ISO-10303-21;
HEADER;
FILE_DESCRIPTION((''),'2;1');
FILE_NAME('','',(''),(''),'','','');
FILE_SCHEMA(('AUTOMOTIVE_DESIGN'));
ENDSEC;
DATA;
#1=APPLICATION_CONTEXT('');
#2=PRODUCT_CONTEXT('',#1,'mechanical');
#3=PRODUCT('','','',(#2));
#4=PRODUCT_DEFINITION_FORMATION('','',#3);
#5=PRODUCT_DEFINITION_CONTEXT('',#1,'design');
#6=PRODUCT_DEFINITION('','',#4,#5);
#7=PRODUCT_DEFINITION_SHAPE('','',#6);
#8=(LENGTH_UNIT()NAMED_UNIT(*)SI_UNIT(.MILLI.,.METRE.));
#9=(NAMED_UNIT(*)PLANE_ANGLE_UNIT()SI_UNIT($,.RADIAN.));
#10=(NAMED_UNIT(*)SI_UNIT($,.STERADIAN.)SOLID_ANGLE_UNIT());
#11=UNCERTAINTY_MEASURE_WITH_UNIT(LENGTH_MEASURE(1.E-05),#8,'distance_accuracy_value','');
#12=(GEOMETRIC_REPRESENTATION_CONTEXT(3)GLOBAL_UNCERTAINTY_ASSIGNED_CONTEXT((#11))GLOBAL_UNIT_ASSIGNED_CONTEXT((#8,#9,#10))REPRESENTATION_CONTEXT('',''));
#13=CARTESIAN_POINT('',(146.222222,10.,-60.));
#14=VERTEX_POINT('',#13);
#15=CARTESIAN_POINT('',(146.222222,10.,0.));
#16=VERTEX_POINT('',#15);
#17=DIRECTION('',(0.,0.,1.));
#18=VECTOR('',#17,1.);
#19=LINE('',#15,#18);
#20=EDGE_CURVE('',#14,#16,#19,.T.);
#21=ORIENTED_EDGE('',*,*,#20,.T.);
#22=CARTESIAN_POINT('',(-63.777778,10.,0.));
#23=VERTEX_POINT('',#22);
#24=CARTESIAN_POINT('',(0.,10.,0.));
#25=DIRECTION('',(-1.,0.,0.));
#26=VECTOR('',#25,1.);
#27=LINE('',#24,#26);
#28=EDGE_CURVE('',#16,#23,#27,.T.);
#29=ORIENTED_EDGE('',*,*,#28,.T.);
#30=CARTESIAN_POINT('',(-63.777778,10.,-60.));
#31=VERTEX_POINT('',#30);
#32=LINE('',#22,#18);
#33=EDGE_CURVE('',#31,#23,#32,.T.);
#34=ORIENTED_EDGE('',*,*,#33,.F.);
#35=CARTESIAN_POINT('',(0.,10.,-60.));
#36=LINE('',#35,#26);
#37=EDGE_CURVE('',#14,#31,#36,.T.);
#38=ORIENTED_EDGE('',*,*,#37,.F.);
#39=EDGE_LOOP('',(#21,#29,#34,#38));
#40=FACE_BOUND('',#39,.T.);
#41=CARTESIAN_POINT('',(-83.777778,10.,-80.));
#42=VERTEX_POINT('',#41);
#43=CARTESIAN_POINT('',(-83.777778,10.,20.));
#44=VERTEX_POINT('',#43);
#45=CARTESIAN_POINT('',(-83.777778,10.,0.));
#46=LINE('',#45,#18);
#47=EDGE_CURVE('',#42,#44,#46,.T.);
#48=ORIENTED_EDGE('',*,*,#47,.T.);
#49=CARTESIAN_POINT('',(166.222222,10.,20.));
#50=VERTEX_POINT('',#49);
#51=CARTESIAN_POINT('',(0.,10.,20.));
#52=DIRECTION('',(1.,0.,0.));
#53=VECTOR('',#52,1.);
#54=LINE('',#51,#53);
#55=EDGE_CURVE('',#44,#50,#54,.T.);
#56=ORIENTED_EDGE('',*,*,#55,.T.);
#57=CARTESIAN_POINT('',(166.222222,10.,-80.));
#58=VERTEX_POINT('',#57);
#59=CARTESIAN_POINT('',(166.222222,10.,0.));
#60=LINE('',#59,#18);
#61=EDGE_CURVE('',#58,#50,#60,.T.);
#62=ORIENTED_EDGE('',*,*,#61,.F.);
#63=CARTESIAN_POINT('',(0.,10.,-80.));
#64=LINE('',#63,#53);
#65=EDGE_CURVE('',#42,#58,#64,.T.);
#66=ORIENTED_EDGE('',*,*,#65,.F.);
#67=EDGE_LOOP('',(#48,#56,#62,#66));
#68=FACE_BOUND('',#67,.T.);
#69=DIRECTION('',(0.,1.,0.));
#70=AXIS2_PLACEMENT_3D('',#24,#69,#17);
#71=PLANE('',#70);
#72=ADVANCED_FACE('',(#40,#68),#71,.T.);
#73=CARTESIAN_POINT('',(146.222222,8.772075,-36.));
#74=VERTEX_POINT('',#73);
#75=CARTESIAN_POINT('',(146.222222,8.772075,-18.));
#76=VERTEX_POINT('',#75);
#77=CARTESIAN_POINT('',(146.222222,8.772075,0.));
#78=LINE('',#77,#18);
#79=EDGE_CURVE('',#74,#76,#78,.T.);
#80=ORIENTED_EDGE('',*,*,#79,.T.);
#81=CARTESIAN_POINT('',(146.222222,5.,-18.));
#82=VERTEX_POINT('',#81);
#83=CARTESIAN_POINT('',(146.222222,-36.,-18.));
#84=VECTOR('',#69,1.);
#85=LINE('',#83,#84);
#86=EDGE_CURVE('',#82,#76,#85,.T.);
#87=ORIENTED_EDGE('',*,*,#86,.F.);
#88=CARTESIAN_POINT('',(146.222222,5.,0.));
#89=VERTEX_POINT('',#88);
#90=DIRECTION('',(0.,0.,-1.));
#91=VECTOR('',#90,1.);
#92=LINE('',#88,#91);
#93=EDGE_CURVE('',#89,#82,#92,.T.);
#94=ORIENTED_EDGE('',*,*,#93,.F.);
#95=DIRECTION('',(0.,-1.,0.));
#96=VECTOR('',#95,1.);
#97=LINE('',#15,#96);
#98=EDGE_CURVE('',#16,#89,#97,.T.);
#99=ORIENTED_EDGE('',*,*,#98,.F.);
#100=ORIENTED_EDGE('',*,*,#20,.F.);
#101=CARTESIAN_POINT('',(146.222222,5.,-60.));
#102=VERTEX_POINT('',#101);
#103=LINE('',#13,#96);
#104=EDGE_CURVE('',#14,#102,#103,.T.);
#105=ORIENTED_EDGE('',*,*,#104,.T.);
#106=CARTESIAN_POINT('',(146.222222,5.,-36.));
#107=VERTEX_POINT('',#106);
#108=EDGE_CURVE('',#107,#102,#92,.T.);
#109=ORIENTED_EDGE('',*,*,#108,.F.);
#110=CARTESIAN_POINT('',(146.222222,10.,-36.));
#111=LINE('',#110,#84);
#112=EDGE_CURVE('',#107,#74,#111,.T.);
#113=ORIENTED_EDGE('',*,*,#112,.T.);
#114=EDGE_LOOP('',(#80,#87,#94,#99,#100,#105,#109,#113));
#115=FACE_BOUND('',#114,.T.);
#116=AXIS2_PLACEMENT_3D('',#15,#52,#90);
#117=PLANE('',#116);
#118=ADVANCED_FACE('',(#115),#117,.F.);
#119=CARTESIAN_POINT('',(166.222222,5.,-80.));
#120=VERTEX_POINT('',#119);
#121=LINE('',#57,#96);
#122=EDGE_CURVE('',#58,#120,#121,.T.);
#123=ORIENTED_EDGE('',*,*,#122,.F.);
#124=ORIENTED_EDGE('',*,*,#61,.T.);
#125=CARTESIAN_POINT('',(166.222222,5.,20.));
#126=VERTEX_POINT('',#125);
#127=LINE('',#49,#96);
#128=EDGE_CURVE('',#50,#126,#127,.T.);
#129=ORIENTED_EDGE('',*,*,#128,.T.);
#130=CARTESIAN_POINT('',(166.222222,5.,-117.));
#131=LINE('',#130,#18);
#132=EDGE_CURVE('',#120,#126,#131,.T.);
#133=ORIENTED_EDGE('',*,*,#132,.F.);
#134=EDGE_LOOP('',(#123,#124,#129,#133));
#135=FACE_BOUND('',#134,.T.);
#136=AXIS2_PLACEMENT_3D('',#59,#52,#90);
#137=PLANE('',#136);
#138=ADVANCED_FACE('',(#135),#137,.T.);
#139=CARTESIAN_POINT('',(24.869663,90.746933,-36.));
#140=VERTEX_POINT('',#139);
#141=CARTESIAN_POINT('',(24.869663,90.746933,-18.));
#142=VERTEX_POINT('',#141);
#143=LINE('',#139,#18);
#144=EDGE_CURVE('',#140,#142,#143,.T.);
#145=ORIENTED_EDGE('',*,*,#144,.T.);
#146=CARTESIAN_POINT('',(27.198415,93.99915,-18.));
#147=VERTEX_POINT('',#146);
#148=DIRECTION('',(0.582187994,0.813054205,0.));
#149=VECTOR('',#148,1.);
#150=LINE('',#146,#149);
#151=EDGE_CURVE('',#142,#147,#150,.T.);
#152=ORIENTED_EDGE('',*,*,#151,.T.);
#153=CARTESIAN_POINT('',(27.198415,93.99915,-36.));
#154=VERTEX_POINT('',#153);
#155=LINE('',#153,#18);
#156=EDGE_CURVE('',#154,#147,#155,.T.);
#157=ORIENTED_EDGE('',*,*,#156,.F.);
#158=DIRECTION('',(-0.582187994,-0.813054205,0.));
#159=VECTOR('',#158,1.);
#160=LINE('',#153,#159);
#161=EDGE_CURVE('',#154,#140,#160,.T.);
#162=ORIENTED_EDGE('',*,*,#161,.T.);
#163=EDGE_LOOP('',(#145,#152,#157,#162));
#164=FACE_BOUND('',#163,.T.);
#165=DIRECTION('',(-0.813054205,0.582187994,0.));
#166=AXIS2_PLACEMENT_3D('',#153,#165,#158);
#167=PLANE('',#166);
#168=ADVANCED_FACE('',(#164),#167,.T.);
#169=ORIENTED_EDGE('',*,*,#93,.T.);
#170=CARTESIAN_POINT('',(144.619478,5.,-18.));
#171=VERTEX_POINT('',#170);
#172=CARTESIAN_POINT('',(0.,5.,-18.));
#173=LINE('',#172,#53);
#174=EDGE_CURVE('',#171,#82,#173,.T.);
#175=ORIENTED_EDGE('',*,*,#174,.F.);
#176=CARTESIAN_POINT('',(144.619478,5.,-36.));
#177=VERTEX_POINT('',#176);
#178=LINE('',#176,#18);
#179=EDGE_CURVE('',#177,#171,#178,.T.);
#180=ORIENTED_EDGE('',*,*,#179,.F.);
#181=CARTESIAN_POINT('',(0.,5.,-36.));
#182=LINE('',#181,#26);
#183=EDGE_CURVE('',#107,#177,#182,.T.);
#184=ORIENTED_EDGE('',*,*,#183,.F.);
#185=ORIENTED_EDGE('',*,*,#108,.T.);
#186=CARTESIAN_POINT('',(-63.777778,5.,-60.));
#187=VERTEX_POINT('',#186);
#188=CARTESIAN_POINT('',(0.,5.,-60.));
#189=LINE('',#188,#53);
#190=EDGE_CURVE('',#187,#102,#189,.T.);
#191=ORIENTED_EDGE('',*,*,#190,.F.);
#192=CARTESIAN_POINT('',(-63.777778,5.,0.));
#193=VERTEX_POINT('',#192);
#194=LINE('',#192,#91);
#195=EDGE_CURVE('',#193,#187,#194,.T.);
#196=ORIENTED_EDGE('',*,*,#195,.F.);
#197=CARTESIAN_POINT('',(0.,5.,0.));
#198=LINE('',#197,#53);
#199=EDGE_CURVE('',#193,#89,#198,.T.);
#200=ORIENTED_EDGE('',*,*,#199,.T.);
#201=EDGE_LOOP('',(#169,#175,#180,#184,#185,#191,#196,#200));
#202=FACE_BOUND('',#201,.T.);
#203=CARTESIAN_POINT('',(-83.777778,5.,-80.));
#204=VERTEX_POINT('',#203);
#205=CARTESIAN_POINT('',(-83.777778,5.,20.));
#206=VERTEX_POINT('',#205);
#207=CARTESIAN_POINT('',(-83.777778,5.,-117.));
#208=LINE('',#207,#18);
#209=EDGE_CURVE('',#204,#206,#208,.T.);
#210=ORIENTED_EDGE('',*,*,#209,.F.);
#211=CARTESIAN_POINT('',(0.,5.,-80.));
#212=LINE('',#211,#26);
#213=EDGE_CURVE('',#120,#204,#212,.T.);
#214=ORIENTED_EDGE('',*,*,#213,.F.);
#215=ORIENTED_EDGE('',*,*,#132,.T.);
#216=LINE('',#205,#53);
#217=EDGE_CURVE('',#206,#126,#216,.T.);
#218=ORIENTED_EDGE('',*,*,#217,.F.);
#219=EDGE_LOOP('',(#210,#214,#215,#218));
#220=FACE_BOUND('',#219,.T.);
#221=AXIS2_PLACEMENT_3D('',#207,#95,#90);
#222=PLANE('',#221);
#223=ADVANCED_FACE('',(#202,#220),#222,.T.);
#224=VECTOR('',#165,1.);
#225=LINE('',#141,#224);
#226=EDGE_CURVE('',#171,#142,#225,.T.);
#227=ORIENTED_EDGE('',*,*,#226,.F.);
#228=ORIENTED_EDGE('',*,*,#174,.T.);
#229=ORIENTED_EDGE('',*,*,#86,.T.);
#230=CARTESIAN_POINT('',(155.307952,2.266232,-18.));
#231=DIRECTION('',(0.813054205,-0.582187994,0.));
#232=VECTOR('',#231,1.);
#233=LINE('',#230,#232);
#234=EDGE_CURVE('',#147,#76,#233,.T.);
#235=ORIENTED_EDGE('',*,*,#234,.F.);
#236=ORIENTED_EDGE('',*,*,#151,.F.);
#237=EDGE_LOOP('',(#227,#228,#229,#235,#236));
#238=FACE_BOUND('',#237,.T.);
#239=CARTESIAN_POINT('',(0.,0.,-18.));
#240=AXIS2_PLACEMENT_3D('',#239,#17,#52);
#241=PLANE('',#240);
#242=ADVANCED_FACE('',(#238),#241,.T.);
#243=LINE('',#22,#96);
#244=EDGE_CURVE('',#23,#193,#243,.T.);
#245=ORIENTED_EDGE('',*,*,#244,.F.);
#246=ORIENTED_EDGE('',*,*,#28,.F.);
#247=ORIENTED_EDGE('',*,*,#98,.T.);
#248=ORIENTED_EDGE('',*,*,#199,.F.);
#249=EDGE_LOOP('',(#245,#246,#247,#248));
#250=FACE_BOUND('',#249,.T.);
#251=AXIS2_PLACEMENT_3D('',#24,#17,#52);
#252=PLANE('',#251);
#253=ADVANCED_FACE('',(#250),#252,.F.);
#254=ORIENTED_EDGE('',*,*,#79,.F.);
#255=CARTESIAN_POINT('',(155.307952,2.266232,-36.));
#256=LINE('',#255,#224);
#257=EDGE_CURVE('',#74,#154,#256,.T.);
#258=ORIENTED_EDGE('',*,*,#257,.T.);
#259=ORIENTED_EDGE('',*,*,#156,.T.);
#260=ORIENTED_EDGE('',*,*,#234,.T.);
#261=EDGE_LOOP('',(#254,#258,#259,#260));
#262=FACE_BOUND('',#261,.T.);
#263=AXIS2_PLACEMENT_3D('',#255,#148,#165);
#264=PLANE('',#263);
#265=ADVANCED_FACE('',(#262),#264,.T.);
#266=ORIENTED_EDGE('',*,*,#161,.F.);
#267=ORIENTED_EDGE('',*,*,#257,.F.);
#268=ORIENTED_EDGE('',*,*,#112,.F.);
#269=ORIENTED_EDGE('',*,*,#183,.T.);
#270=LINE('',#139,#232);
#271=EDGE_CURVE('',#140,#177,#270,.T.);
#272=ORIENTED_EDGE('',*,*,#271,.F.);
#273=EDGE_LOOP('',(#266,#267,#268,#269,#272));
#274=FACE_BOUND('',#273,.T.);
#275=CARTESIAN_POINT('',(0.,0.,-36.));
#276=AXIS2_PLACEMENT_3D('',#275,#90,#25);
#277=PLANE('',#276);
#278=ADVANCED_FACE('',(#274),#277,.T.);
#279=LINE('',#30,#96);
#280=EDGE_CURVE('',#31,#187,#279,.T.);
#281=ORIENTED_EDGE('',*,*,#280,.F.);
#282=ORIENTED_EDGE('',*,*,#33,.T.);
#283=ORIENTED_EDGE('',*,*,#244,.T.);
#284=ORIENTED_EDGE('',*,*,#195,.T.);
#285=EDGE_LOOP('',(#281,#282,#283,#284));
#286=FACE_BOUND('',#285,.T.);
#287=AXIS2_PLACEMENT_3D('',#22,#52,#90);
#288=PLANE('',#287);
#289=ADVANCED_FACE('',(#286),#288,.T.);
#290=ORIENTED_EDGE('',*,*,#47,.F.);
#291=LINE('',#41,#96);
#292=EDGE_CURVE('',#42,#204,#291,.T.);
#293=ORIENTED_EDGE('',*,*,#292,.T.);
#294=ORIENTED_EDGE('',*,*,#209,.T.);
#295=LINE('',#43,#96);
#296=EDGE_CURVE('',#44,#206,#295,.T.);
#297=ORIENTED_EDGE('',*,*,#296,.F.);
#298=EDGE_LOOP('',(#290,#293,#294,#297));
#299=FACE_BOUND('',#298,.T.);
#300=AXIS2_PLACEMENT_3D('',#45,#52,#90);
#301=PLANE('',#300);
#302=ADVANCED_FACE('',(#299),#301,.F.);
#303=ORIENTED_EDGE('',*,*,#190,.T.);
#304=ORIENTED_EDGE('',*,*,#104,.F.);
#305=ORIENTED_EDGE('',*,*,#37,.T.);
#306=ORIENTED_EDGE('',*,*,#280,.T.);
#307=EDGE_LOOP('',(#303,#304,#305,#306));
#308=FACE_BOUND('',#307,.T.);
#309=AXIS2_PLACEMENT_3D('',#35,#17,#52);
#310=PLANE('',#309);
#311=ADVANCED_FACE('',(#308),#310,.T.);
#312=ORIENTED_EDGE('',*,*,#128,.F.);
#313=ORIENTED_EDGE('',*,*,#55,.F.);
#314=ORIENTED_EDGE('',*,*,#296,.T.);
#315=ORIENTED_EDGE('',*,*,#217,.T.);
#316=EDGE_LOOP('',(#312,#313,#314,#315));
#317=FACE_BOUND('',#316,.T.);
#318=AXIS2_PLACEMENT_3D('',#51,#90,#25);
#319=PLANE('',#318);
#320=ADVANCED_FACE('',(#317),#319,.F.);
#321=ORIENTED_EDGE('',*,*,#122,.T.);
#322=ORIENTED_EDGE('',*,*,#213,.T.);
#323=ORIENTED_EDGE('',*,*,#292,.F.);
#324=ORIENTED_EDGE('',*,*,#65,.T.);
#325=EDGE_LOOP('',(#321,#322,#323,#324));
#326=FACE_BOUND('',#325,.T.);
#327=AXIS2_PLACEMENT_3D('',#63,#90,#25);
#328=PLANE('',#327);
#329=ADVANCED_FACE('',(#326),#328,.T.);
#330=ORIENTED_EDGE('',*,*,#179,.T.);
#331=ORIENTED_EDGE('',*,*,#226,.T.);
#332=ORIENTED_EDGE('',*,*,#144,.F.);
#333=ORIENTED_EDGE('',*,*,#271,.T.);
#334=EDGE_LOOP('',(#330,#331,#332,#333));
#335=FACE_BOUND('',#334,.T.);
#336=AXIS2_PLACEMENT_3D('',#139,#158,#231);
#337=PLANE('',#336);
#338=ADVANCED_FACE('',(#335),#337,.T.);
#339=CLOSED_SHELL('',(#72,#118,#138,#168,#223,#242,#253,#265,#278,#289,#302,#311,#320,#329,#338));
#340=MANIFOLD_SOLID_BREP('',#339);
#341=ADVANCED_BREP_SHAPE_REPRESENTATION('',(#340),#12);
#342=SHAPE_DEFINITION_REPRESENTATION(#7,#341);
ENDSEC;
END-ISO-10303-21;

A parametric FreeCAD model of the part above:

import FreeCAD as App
import Part
import Sketcher
from FreeCAD import Vector


def add_polygon(sketch, points):
    """Adds a closed chain of lines whose ends are joined by coincident constraints."""
    first, n = sketch.GeometryCount, len(points)
    for a, b in zip(points, points[1:] + points[:1]):
        sketch.addGeometry(Part.LineSegment(App.Vector(*a, 0), App.Vector(*b, 0)), False)
    for i in range(n):
        sketch.addConstraint(Sketcher.Constraint("Coincident", first + i, 2, first + (i + 1) % n, 1))

doc = App.newDocument("Part")
body = doc.addObject("PartDesign::Body", "Body")

sketch1 = body.newObject("Sketcher::SketchObject", "Sketch")
sketch1.AttachmentSupport = (doc.getObject("XZ_Plane"), [""])
sketch1.MapMode = "FlatFace"
add_polygon(sketch1, [(-84, -80), (-84, 20), (166, 20), (166, -80)])
add_polygon(sketch1, [(-64, -60), (146, -60), (146, 0), (-64, 0)])
sketch1.addConstraint(Sketcher.Constraint("Vertical", 0))
sketch1.addConstraint(Sketcher.Constraint("Horizontal", 1))
sketch1.addConstraint(Sketcher.Constraint("Vertical", 2))
sketch1.addConstraint(Sketcher.Constraint("Horizontal", 3))
sketch1.addConstraint(Sketcher.Constraint("Horizontal", 4))
sketch1.addConstraint(Sketcher.Constraint("Vertical", 5))
sketch1.addConstraint(Sketcher.Constraint("Horizontal", 6))
sketch1.addConstraint(Sketcher.Constraint("Vertical", 7))
sketch1.addConstraint(Sketcher.Constraint("PointOnObject", 5, 2, -1))
sketch1.addConstraint(Sketcher.Constraint("DistanceX", 1, 1, 1, 2, 250.0))
sketch1.addConstraint(Sketcher.Constraint("DistanceX", 4, 1, 4, 2, 210.0))
sketch1.addConstraint(Sketcher.Constraint("DistanceY", 0, 1, 0, 2, 100.0))
sketch1.addConstraint(Sketcher.Constraint("DistanceY", 5, 1, 5, 2, 60.0))
sketch1.addConstraint(Sketcher.Constraint("DistanceY", -1, 1, 0, 2, 20.0))
sketch1.addConstraint(Sketcher.Constraint("DistanceX", 4, 2, 2, 2, 20.0))
sketch1.addConstraint(Sketcher.Constraint("DistanceX", 0, 2, -1, 1, 83.777778))
pad1 = body.newObject("PartDesign::Pad", "Pad")
pad1.Profile = sketch1
pad1.Length = 10
pad1.Reversed = True

sketch2 = body.newObject("Sketcher::SketchObject", "Sketch001")
sketch2.AttachmentSupport = (doc.getObject("XY_Plane"), [""])
sketch2.MapMode = "FlatFace"
add_polygon(sketch2, [(155.3, 2.3), (27.2, 94), (24.9, 90.7), (148.4, 2.3)])
sketch2.addConstraint(Sketcher.Constraint("Horizontal", 3))
sketch2.addConstraint(Sketcher.Constraint("Perpendicular", 0, 1))
sketch2.addConstraint(Sketcher.Constraint("Perpendicular", 1, 2))
sketch2.addConstraint(Sketcher.Constraint("Distance", 1, 4.0))
sketch2.addConstraint(Sketcher.Constraint("Distance", 0, 157.565801))
sketch2.addConstraint(Sketcher.Constraint("DistanceY", 2, 2, 1, 2, 88.480701))
sketch2.addConstraint(Sketcher.Constraint("DistanceY", -1, 1, 0, 2, 93.99915))
sketch2.addConstraint(Sketcher.Constraint("DistanceX", -1, 1, 2, 2, 148.437319))
pad2 = body.newObject("PartDesign::Pad", "Pad001")
pad2.Profile = sketch2
pad2.Length = 36
pad2.Reversed = True

sketch3 = body.newObject("Sketcher::SketchObject", "Sketch002")
sketch3.AttachmentSupport = (doc.getObject("XY_Plane"), [""])
sketch3.MapMode = "FlatFace"
add_polygon(sketch3, [(12, 150), (12, 10), (152, 10), (152, 150)])
sketch3.addConstraint(Sketcher.Constraint("Vertical", 0))
sketch3.addConstraint(Sketcher.Constraint("Horizontal", 1))
sketch3.addConstraint(Sketcher.Constraint("Vertical", 2))
sketch3.addConstraint(Sketcher.Constraint("Horizontal", 3))
sketch3.addConstraint(Sketcher.Constraint("Equal", 3, 0))
sketch3.addConstraint(Sketcher.Constraint("DistanceX", 1, 1, 1, 2, 140.0))
sketch3.addConstraint(Sketcher.Constraint("DistanceY", -1, 1, 0, 2, 10.0))
sketch3.addConstraint(Sketcher.Constraint("DistanceX", -1, 1, 0, 2, 12.194739))
pocket1 = body.newObject("PartDesign::Pocket", "Pocket")
pocket1.Profile = sketch3
pocket1.Length = 18

sketch4 = body.newObject("Sketcher::SketchObject", "Sketch003")
sketch4.AttachmentSupport = (doc.getObject("XZ_Plane"), [""])
sketch4.MapMode = "FlatFace"
sketch4.AttachmentOffset = App.Placement(Vector(0, 0, -10), App.Rotation())
add_polygon(sketch4, [(138, -18), (138, 0), (146, 0), (146, -18)])
sketch4.addConstraint(Sketcher.Constraint("Vertical", 0))
sketch4.addConstraint(Sketcher.Constraint("Horizontal", 1))
sketch4.addConstraint(Sketcher.Constraint("Vertical", 2))
sketch4.addConstraint(Sketcher.Constraint("Horizontal", 3))
sketch4.addConstraint(Sketcher.Constraint("PointOnObject", 0, 2, -1))
sketch4.addConstraint(Sketcher.Constraint("DistanceY", 0, 1, 0, 2, 18.0))
sketch4.addConstraint(Sketcher.Constraint("DistanceX", 1, 1, 1, 2, 8.585491))
sketch4.addConstraint(Sketcher.Constraint("DistanceX", -1, 1, 0, 2, 137.636731))
pocket2 = body.newObject("PartDesign::Pocket", "Pocket001")
pocket2.Profile = sketch4
pocket2.Length = 46
pocket2.Reversed = True

sketch5 = body.newObject("Sketcher::SketchObject", "Sketch004")
sketch5.AttachmentSupport = (doc.getObject("XY_Plane"), [""])
sketch5.MapMode = "FlatFace"
sketch5.AttachmentOffset = App.Placement(Vector(0, 0, 20), App.Rotation())
add_polygon(sketch5, [(-84, 5), (-84, 0), (166, 0), (166, 5)])
sketch5.addConstraint(Sketcher.Constraint("Vertical", 0))
sketch5.addConstraint(Sketcher.Constraint("Horizontal", 1))
sketch5.addConstraint(Sketcher.Constraint("Vertical", 2))
sketch5.addConstraint(Sketcher.Constraint("Horizontal", 3))
sketch5.addConstraint(Sketcher.Constraint("PointOnObject", 0, 2, -1))
sketch5.addConstraint(Sketcher.Constraint("DistanceX", 1, 1, 1, 2, 250.0))
sketch5.addConstraint(Sketcher.Constraint("DistanceY", 0, 2, 0, 1, 5.0))
sketch5.addConstraint(Sketcher.Constraint("DistanceX", 0, 2, -1, 1, 83.777778))
pocket3 = body.newObject("PartDesign::Pocket", "Pocket002")
pocket3.Profile = sketch5
pocket3.Length = 137

doc.recompute()
